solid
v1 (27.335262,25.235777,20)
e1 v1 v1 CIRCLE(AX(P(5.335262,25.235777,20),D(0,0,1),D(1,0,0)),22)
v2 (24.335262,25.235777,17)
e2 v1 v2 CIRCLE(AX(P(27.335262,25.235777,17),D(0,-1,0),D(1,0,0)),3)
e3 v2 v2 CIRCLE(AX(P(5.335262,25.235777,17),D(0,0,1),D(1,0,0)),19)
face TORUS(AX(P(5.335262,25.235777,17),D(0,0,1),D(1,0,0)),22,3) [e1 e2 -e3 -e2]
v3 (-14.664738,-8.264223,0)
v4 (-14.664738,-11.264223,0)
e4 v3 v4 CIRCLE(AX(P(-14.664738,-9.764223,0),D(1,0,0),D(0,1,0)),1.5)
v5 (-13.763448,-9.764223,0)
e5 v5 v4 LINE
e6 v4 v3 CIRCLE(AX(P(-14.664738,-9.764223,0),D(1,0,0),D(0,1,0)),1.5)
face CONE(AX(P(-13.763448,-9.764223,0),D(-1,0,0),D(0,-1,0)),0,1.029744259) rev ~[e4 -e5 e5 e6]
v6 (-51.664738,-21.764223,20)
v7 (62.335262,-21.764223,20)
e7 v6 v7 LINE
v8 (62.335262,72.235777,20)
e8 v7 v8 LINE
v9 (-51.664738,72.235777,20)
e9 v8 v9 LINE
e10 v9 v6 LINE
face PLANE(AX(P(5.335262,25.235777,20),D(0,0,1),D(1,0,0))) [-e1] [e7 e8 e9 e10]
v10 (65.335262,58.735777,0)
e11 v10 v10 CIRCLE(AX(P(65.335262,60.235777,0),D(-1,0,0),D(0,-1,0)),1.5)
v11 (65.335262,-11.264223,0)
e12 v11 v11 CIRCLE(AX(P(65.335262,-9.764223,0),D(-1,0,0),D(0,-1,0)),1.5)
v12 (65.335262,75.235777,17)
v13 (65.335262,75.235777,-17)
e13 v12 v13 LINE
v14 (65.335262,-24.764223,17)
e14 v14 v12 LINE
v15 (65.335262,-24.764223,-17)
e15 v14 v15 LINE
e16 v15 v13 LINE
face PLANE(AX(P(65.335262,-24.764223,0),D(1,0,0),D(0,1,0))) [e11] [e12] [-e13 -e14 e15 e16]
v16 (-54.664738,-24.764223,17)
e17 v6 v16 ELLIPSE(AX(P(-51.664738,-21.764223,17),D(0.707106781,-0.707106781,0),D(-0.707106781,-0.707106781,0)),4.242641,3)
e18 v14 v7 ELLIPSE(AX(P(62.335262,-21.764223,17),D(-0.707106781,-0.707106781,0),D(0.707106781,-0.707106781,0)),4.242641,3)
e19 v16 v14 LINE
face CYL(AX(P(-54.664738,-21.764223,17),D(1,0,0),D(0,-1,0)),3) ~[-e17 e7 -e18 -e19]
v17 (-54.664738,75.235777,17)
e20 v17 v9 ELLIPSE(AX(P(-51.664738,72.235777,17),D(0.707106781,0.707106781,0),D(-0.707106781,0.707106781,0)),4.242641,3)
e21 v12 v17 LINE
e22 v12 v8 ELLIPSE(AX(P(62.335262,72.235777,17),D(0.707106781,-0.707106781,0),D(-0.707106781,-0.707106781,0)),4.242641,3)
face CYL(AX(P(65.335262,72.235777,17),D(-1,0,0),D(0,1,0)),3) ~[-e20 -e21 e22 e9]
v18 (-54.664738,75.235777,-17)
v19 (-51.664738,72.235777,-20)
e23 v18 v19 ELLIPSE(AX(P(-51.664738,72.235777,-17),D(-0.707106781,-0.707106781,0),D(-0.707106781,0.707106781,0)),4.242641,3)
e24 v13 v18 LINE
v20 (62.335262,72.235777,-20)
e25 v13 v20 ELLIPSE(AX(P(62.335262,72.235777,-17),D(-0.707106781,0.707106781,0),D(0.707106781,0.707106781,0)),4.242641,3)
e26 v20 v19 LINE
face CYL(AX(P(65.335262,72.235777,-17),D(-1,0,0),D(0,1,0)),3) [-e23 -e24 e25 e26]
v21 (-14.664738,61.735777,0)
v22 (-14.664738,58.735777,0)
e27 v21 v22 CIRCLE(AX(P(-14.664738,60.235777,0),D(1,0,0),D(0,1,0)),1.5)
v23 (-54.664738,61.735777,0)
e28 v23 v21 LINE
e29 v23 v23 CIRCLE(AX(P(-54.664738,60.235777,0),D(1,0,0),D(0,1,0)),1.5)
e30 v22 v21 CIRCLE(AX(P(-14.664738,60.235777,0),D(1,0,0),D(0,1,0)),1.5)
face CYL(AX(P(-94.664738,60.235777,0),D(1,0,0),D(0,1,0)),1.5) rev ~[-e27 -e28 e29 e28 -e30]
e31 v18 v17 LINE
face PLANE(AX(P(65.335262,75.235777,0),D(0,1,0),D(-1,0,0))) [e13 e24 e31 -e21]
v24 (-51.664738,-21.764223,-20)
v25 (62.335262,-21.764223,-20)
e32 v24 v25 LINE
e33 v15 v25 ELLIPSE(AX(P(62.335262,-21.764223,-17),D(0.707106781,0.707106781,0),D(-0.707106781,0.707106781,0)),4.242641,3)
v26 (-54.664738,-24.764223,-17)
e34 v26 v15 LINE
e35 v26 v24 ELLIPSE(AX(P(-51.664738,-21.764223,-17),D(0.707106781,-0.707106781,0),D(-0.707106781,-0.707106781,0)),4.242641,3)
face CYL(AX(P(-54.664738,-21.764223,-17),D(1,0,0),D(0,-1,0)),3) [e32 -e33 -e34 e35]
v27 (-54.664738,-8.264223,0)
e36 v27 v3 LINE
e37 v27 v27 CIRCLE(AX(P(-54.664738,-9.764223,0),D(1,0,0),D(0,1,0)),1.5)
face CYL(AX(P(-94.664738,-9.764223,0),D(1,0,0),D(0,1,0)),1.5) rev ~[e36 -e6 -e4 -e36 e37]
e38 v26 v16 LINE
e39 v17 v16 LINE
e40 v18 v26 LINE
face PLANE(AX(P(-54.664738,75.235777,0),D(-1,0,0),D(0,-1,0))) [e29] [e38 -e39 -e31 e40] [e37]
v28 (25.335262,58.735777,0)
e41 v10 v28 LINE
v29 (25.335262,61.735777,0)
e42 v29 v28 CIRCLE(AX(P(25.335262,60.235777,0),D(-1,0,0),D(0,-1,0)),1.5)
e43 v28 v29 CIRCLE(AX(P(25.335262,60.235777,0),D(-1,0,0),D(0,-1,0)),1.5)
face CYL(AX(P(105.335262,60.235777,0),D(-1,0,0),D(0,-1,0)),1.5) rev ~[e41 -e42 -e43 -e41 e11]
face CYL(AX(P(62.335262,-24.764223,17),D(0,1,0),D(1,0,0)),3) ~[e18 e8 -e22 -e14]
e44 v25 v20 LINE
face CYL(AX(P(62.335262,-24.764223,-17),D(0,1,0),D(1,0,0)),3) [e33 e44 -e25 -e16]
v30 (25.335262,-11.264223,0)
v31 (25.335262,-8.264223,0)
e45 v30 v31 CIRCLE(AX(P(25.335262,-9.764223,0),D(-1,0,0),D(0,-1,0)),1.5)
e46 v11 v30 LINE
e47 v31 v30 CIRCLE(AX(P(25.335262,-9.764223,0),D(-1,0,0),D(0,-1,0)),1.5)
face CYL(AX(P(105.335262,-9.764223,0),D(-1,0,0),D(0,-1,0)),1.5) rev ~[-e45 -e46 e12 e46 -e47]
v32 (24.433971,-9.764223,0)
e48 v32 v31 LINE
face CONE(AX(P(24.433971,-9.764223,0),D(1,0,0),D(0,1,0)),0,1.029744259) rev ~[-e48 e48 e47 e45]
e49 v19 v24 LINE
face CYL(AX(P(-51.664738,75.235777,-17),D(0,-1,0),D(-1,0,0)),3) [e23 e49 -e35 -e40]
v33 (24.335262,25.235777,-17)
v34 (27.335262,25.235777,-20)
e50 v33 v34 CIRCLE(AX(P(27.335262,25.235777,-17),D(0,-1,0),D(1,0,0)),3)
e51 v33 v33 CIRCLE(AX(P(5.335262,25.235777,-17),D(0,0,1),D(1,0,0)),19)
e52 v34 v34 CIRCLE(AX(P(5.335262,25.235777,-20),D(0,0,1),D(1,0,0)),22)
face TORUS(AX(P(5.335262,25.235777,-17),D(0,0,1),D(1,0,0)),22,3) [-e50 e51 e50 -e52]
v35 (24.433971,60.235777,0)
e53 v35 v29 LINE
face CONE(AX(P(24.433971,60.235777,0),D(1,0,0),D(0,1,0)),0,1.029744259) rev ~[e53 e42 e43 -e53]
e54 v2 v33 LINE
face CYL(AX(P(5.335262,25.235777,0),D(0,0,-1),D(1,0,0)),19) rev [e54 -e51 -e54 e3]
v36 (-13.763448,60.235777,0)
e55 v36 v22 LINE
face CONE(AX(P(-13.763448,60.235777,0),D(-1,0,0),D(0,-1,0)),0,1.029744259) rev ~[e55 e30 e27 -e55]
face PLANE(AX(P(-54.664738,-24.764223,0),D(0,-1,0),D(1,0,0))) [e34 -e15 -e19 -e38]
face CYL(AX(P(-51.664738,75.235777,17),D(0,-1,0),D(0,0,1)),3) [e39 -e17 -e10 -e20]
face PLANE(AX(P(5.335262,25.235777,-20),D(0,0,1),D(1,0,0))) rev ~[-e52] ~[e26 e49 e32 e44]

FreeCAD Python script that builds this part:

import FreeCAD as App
import Part
import Sketcher
from FreeCAD import Vector
Q = App.Units.Quantity


def edges_at(feature, points):
    """Names of the edges that pass closest to the given points."""
    edges = feature.Shape.Edges
    near = lambda p: min(range(len(edges)), key=lambda i: edges[i].distToShape(Part.Vertex(*p))[0])
    return sorted({f"Edge{near(p) + 1}" for p in points})

doc = App.newDocument("Part")
body = doc.addObject("PartDesign::Body", "Body")

sketch1 = body.newObject("Sketcher::SketchObject", "Sketch")
sketch1.AttachmentSupport = (doc.getObject("XY_Plane"), [""])
sketch1.MapMode = "FlatFace"
sketch1.addGeometry([
    Part.LineSegment(Vector(65.335262, 75.235777, 0), Vector(-54.664738, 75.235777, 0)),
    Part.LineSegment(Vector(-54.664738, 75.235777, 0), Vector(-54.664738, -24.764223, 0)),
    Part.LineSegment(Vector(-54.664738, -24.764223, 0), Vector(65.335262, -24.764223, 0)),
    Part.LineSegment(Vector(65.335262, -24.764223, 0), Vector(65.335262, 75.235777, 0)),
    Part.Circle(Vector(5.335262, 25.235777, 0), Vector(0, 0, 1), 19),
], False)
sketch1.addConstraint([
    Sketcher.Constraint("Coincident", 0, 2, 1, 1),
    Sketcher.Constraint("Coincident", 1, 2, 2, 1),
    Sketcher.Constraint("Coincident", 2, 2, 3, 1),
    Sketcher.Constraint("Coincident", 3, 2, 0, 1),
    Sketcher.Constraint("Horizontal", 0),
    Sketcher.Constraint("Vertical", 1),
    Sketcher.Constraint("Horizontal", 2),
    Sketcher.Constraint("Vertical", 3),
    Sketcher.Constraint("Diameter", 4, Q("38 mm")),
    Sketcher.Constraint("DistanceX", 0, 2, 0, 1, Q("120 mm")),
    Sketcher.Constraint("DistanceY", 1, 2, 1, 1, Q("100 mm")),
    Sketcher.Constraint("DistanceX", 0, 2, 4, 3, Q("60 mm")),
    Sketcher.Constraint("DistanceY", 4, 3, 0, 2, Q("50 mm")),
    Sketcher.Constraint("DistanceX", -1, 1, 4, 3, Q("5.335262 mm")),
    Sketcher.Constraint("DistanceY", -1, 1, 4, 3, Q("25.235777 mm")),
])
pad1 = body.newObject("PartDesign::Pad", "Pad")
pad1.Profile = sketch1
pad1.Length = 40
pad1.Midplane = True
doc.recompute()

fillet = body.newObject("PartDesign::Fillet", "Fillet")
fillet.Base = (pad1, edges_at(pad1, [
    (5.335, 75.236, 20),
    (-54.665, 25.236, 20),
    (5.335, -24.764, 20),
    (65.335, 25.236, 20),
    (-13.665, 25.236, 20),
    (65.335, 25.236, -20),
    (5.335, 75.236, -20),
    (-54.665, 25.236, -20),
    (5.335, -24.764, -20),
    (-13.665, 25.236, -20),
]))
fillet.Radius = 3

sketch2 = body.newObject("Sketcher::SketchObject", "Sketch001")
sketch2.AttachmentSupport = (doc.getObject("YZ_Plane"), [""])
sketch2.MapMode = "FlatFace"
sketch2.AttachmentOffset = App.Placement(Vector(0, 0, -54.664738), App.Rotation())
sketch2.addGeometry([
    Part.Circle(Vector(-9.764223, 0, 0), Vector(0, 0, 1), 1.5),
    Part.Circle(Vector(60.235777, 0, 0), Vector(0, 0, 1), 1.5),
], False)
sketch2.addConstraint([
    Sketcher.Constraint("Equal", 0, 1),
    Sketcher.Constraint("PointOnObject", 0, 3, -1),
    Sketcher.Constraint("PointOnObject", 1, 3, -1),
    Sketcher.Constraint("Diameter", 0, Q("3 mm")),
    Sketcher.Constraint("DistanceX", 0, 3, 1, 3, Q("70 mm")),
    Sketcher.Constraint("DistanceX", 0, 3, -1, 1, Q("9.764223 mm")),
])
doc.recompute()
hole = body.newObject("PartDesign::Hole", "Hole")
hole.Profile = sketch2
hole.ThreadType = "None"
hole.Diameter = 3
hole.DepthType = "Dimension"
hole.Depth = 40
hole.DrillPoint = "Angled"
hole.DrillPointAngle = 118
hole.Reversed = True

sketch3 = body.newObject("Sketcher::SketchObject", "Sketch002")
sketch3.AttachmentSupport = (doc.getObject("YZ_Plane"), [""])
sketch3.MapMode = "FlatFace"
sketch3.AttachmentOffset = App.Placement(Vector(0, 0, 65.335262), App.Rotation())
sketch3.addGeometry([
    Part.Circle(Vector(60.235777, 0, 0), Vector(0, 0, 1), 1.5),
    Part.Circle(Vector(-9.764223, 0, 0), Vector(0, 0, 1), 1.5),
], False)
sketch3.addConstraint([
    Sketcher.Constraint("Equal", 0, 1),
    Sketcher.Constraint("PointOnObject", 0, 3, -1),
    Sketcher.Constraint("PointOnObject", 1, 3, -1),
    Sketcher.Constraint("Diameter", 0, Q("3 mm")),
    Sketcher.Constraint("DistanceX", 1, 3, 0, 3, Q("70 mm")),
    Sketcher.Constraint("DistanceX", -1, 1, 0, 3, Q("60.235777 mm")),
])
doc.recompute()
hole2 = body.newObject("PartDesign::Hole", "Hole001")
hole2.Profile = sketch3
hole2.ThreadType = "None"
hole2.Diameter = 3
hole2.DepthType = "Dimension"
hole2.Depth = 40
hole2.DrillPoint = "Angled"
hole2.DrillPointAngle = 118

doc.recompute()
